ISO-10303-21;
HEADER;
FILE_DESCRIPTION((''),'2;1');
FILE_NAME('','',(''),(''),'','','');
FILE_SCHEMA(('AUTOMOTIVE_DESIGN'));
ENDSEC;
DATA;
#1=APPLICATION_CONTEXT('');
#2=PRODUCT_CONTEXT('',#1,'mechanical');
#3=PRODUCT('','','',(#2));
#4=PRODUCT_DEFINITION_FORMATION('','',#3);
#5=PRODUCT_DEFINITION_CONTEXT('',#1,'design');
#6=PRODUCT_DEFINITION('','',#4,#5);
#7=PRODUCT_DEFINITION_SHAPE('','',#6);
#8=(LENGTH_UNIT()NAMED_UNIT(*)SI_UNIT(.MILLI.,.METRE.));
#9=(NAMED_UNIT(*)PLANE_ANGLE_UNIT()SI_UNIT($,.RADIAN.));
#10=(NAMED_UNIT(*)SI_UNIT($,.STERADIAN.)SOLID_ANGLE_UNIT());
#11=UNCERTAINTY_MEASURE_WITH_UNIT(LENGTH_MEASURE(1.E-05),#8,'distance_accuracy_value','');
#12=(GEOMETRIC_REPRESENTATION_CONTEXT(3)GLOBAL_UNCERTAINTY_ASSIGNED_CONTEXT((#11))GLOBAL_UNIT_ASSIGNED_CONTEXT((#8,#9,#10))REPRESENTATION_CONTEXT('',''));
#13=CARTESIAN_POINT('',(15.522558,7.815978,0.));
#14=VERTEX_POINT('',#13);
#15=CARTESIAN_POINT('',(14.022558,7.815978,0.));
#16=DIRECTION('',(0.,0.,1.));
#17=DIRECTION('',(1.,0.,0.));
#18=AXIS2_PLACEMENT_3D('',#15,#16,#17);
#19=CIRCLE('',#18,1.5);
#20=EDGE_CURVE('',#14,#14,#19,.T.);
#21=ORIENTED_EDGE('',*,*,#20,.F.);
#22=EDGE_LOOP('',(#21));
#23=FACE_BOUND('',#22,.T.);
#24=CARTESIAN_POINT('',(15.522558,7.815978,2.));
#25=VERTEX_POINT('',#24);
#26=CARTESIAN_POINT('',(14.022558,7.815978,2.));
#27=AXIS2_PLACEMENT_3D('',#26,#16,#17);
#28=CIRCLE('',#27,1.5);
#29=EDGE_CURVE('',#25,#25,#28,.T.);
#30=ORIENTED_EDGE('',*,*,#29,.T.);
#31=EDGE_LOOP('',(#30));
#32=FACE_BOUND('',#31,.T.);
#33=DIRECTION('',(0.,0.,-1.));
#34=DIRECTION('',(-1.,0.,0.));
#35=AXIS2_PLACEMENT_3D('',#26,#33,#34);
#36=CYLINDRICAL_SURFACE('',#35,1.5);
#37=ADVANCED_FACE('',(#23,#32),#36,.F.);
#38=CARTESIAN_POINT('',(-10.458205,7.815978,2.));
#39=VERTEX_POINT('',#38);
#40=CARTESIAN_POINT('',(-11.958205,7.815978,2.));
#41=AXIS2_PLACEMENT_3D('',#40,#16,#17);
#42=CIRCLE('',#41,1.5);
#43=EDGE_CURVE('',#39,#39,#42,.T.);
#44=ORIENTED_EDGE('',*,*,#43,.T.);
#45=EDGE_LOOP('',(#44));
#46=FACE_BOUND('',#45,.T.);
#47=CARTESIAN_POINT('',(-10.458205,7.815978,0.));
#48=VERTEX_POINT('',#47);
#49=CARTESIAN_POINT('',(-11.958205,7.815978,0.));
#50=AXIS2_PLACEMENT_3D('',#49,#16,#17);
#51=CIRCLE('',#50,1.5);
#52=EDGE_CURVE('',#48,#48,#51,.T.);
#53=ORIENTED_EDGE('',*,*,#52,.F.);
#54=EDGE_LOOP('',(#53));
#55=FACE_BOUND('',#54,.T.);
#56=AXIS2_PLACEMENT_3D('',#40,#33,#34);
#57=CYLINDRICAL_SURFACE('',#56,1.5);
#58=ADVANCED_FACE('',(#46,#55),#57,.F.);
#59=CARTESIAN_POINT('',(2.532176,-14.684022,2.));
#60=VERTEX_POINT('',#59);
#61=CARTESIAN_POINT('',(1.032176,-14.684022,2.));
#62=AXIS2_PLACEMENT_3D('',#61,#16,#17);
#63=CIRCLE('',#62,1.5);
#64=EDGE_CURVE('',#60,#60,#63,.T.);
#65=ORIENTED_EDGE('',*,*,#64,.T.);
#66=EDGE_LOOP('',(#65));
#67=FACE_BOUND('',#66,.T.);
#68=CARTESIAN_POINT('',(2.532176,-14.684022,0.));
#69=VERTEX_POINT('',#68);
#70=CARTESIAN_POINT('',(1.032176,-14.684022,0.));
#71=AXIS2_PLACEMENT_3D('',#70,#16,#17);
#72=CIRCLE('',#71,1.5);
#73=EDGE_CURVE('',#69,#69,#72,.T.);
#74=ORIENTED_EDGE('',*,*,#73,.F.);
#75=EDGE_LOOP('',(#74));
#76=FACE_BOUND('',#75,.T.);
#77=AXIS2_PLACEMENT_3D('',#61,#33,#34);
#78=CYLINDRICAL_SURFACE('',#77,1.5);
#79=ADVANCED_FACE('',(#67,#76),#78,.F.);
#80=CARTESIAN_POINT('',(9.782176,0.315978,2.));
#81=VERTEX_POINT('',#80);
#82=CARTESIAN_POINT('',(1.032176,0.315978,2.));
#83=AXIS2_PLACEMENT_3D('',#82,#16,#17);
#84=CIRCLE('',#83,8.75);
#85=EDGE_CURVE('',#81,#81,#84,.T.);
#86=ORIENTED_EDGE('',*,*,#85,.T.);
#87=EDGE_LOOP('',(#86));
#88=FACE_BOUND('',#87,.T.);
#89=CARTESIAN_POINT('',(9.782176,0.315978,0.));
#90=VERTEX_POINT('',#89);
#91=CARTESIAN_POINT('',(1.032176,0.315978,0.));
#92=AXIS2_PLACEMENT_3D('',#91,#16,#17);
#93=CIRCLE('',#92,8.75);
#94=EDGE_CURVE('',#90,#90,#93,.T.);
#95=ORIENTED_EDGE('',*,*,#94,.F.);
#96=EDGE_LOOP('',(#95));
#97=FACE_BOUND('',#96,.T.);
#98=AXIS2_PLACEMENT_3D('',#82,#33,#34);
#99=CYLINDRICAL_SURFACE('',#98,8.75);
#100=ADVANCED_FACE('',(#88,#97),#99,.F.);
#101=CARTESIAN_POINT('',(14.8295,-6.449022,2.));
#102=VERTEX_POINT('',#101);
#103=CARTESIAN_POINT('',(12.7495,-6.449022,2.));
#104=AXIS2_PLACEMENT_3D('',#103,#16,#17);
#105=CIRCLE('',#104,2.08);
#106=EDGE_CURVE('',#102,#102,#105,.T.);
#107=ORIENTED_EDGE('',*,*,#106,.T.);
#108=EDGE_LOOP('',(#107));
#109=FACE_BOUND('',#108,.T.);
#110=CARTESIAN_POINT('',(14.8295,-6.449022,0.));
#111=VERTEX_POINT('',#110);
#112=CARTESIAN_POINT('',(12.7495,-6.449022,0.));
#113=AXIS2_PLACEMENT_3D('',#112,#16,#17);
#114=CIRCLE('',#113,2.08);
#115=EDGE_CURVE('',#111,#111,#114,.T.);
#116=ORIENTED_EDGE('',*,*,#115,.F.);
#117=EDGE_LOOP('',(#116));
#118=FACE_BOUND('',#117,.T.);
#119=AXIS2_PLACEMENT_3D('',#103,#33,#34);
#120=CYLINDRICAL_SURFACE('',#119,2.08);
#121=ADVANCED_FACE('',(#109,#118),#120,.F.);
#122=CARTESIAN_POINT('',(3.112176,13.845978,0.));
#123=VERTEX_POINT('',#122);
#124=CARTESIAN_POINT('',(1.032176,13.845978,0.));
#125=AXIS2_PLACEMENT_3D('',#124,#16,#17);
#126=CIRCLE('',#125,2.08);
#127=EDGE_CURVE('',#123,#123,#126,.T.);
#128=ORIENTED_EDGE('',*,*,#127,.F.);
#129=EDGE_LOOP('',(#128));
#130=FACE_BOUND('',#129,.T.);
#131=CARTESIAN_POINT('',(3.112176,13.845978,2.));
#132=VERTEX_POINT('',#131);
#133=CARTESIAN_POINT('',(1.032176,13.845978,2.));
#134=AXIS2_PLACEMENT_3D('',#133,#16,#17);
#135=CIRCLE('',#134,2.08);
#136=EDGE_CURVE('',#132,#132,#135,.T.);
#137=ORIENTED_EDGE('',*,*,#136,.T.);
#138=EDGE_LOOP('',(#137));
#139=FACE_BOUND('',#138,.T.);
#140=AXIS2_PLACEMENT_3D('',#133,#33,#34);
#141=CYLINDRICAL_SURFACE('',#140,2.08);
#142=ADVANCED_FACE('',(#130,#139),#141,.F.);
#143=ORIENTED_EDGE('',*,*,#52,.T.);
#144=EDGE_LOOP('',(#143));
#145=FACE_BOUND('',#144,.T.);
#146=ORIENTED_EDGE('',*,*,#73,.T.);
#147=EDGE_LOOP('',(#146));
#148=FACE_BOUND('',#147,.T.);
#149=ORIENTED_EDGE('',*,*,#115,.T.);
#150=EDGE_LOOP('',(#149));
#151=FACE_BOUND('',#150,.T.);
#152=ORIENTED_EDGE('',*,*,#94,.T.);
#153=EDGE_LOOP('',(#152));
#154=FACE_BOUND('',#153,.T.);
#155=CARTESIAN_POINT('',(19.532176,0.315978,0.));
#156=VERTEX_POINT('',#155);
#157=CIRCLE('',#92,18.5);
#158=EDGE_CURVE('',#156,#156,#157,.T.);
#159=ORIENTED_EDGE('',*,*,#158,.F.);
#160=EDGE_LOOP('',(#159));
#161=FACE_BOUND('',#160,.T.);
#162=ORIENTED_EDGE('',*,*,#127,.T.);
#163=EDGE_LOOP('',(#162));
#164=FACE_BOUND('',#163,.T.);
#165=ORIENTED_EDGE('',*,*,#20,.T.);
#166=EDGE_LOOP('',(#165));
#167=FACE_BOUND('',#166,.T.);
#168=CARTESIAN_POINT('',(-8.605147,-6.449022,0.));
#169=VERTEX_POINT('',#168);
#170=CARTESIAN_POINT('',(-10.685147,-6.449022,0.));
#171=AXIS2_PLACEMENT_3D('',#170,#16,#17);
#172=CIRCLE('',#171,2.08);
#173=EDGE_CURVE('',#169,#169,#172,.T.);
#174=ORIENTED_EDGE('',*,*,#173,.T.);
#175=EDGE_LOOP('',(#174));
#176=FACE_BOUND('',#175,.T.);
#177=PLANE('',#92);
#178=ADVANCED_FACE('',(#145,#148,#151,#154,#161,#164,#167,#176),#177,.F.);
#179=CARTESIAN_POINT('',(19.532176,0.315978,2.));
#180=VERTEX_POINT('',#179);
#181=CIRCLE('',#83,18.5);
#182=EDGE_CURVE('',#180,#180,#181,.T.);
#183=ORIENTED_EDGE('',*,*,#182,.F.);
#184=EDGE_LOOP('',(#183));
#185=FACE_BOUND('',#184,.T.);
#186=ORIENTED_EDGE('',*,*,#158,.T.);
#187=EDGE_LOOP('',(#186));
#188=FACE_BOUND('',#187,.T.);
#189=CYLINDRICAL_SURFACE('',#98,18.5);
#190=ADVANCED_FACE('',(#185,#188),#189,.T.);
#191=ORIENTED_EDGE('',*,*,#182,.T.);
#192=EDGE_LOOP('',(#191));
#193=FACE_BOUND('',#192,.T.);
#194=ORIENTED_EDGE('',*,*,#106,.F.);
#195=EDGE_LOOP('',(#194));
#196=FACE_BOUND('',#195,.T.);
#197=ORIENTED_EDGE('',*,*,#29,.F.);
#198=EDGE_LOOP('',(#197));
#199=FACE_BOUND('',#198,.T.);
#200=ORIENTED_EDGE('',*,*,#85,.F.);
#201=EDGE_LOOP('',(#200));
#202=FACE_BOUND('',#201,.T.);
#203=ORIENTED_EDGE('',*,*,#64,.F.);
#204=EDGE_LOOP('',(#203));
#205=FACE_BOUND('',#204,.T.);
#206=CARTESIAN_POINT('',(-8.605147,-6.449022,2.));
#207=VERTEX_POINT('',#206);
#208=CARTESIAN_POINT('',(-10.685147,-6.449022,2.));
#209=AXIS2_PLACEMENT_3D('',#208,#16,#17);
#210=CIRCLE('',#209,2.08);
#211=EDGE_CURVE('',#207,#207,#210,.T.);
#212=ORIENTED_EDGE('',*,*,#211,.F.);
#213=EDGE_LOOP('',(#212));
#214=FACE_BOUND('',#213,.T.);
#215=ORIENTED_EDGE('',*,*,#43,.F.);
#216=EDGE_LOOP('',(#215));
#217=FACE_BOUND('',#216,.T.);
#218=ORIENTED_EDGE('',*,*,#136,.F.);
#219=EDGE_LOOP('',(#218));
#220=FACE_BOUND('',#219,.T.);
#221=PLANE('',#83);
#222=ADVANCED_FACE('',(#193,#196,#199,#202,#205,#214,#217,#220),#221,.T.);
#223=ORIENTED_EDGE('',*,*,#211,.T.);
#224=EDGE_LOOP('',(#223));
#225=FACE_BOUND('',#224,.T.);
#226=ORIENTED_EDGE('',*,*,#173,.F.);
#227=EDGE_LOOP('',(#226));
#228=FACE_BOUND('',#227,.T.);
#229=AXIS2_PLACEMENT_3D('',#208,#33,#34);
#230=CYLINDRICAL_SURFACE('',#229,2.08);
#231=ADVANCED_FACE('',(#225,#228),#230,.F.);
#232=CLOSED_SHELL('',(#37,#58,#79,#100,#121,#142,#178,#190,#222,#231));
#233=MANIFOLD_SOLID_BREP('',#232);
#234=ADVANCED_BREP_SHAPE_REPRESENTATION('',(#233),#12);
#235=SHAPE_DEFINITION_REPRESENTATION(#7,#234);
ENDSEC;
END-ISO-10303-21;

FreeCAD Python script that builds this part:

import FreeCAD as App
import Part
import Sketcher

V = App.Vector

doc = App.newDocument("Part")
body = doc.addObject("PartDesign::Body", "Body")

# Sketch on XY plane
sketch1 = doc.addObject("Sketcher::SketchObject", "Sketch")
body.addObject(sketch1)
sketch1.AttachmentSupport = (doc.XY_Plane, [""])
sketch1.MapMode = "FlatFace"
sketch1.addGeometry([
    Part.Circle(V(1.032176, 0.315978, 0), V(0, 0, 1), 18.5),  # 0
    Part.Circle(V(-10.685147, -6.449022, 0), V(0, 0, 1), 2.08),  # 1
    Part.Circle(V(1.032176, -14.684022, 0), V(0, 0, 1), 1.5),  # 2
    Part.Circle(V(12.7495, -6.449022, 0), V(0, 0, 1), 2.08),  # 3
    Part.Circle(V(-11.958205, 7.815978, 0), V(0, 0, 1), 1.5),  # 4
    Part.Circle(V(1.032176, 0.315978, 0), V(0, 0, 1), 8.75),  # 5
    Part.Circle(V(14.022558, 7.815978, 0), V(0, 0, 1), 1.5),  # 6
    Part.Circle(V(1.032176, 13.845978, 0), V(0, 0, 1), 2.08),  # 7
], False)
sketch1.addConstraint([
    Sketcher.Constraint("Coincident", 5, 3, 0, 3),
    Sketcher.Constraint("Equal", 1, 3),
    Sketcher.Constraint("Equal", 2, 4),
    Sketcher.Constraint("Equal", 4, 6),
    Sketcher.Constraint("Equal", 3, 7),
    Sketcher.Constraint("Horizontal", 1, 3, 3, 3),
    Sketcher.Constraint("Horizontal", 4, 3, 6, 3),
    Sketcher.Constraint("Vertical", 0, 3, 2, 3),
    Sketcher.Constraint("Vertical", 5, 3, 7, 3),
    Sketcher.Constraint("Diameter", 0, 37.0),
    Sketcher.Constraint("Diameter", 2, 3.0),
    Sketcher.Constraint("Diameter", 5, 17.5),
    Sketcher.Constraint("Diameter", 1, 4.16),
    Sketcher.Constraint("DistanceY", 2, 3, 0, 3, 15.0),
    Sketcher.Constraint("DistanceY", 0, 3, 4, 3, 7.5),
    Sketcher.Constraint("DistanceY", 0, 3, 7, 3, 13.53),
    Sketcher.Constraint("DistanceY", 1, 3, 0, 3, 6.765),
    Sketcher.Constraint("DistanceX", -1, 1, 3, 3, 12.7495),
    Sketcher.Constraint("DistanceX", 4, 3, 0, 3, 12.990381),
    Sketcher.Constraint("DistanceX", 0, 3, 6, 3, 12.990381),
    Sketcher.Constraint("DistanceX", -1, 1, 0, 3, 1.032176),
    Sketcher.Constraint("DistanceY", -1, 1, 0, 3, 0.315978),
    Sketcher.Constraint("DistanceX", 1, 3, -1, 1, 10.685147),
])
pad1 = doc.addObject("PartDesign::Pad", "Pad")
body.addObject(pad1)
pad1.Profile = sketch1
pad1.Length = 2

doc.recompute()
